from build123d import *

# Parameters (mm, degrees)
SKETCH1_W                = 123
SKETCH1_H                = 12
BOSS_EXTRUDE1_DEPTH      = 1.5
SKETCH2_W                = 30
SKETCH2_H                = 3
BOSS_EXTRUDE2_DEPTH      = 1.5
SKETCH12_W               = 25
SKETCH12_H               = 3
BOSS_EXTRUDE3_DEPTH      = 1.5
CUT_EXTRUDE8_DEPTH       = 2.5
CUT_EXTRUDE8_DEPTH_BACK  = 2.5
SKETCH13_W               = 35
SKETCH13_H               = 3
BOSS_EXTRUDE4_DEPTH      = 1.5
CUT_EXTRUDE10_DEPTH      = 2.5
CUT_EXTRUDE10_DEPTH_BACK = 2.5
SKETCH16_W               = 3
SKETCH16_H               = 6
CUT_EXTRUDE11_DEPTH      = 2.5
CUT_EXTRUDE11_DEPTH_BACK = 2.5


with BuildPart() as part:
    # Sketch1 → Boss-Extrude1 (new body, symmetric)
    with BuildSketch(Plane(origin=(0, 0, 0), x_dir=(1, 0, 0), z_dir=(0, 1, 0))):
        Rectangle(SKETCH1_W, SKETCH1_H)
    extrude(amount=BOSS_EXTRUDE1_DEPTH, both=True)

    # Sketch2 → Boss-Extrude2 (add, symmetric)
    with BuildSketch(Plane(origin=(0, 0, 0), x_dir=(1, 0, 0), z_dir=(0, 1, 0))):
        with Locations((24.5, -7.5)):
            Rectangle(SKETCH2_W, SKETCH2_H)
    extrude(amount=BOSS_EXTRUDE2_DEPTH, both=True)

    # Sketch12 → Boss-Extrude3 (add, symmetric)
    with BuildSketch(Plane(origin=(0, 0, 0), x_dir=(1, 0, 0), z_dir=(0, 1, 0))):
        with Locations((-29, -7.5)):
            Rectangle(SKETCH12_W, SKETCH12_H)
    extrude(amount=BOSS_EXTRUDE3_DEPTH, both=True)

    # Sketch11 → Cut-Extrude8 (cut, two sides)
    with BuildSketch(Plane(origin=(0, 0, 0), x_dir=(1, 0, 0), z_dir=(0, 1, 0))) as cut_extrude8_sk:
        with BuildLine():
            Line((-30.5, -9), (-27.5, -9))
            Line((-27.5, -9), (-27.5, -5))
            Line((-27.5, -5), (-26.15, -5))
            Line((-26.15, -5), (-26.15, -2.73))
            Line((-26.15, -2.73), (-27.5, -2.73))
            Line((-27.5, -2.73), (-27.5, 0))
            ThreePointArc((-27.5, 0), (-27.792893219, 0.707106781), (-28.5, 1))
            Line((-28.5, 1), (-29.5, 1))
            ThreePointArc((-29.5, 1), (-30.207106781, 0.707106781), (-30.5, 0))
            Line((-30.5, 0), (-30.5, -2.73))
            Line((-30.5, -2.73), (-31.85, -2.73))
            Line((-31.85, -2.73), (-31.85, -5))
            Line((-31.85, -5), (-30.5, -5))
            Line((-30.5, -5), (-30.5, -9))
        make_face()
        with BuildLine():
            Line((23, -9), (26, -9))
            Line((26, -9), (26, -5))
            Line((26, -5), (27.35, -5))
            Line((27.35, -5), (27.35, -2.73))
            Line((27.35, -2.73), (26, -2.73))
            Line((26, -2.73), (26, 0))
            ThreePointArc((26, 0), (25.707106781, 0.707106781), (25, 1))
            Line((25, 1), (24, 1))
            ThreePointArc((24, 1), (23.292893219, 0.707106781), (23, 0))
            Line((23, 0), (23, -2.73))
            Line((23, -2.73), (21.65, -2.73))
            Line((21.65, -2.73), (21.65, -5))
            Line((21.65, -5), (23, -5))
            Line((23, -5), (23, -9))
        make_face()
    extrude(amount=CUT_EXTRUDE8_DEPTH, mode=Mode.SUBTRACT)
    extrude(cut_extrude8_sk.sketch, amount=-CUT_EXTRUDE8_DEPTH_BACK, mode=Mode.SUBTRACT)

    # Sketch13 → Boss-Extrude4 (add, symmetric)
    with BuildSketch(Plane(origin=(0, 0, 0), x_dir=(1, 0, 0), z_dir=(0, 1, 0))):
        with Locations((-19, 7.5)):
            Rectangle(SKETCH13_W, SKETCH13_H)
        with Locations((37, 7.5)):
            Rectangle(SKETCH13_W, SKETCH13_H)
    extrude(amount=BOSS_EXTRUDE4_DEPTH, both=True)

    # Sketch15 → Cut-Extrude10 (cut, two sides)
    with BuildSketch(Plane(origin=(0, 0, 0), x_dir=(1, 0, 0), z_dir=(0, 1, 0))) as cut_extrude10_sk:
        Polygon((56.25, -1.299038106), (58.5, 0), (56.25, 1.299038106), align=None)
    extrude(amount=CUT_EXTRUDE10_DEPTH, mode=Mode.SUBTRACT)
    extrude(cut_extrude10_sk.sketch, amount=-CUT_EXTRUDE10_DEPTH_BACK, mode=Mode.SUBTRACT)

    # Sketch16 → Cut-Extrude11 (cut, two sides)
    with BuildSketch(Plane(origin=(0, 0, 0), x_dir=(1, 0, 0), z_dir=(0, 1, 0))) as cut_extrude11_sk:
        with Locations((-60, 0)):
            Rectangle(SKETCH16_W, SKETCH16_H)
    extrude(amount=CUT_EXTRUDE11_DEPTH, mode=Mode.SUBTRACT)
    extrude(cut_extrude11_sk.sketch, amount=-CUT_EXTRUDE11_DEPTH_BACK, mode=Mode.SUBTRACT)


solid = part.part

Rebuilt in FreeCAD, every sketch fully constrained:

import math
import FreeCAD as App
import Part
import Sketcher
from FreeCAD import Vector
Q = App.Units.Quantity

doc = App.newDocument("Part")
params = doc.addObject("Spreadsheet::Sheet", "Params")
for row, (alias, value) in enumerate([
    ("sketch1_width", "123 mm"),
    ("sketch1_height", "12 mm"),
    ("pad1_length", "3 mm"),
    ("sketch2_width", "30 mm"),
    ("sketch2_height", "3 mm"),
    ("pad2_length", "3 mm"),
    ("sketch3_width", "25 mm"),
    ("sketch3_height", "3 mm"),
    ("pad3_length", "3 mm"),
    ("sketch4_radius", "1 mm"),
    ("sketch4_width", "3 mm"),
    ("sketch4_height", "4 mm"),
    ("sketch4_width2", "1.35 mm"),
    ("sketch4_height2", "2.27 mm"),
    ("sketch5_width", "35 mm"),
    ("sketch5_height", "3 mm"),
    ("pad4_length", "3 mm"),
    ("sketch7_width", "3 mm"),
    ("sketch7_height", "6 mm"),
], start=1):
    params.set(f"A{row}", alias)
    params.set(f"B{row}", "=" + value)
    params.setAlias(f"B{row}", alias)

body = doc.addObject("PartDesign::Body", "Body")

# Sketch on XZ plane
sketch1 = doc.addObject("Sketcher::SketchObject", "Sketch")
body.addObject(sketch1)
sketch1.AttachmentSupport = (doc.XZ_Plane, [""])
sketch1.MapMode = "FlatFace"
sketch1.addGeometry(Part.LineSegment(Vector(-61.5, -6, 0), Vector(-61.5, 6, 0)), False)
sketch1.addGeometry(Part.LineSegment(Vector(-61.5, 6, 0), Vector(61.5, 6, 0)), False)
sketch1.addGeometry(Part.LineSegment(Vector(61.5, 6, 0), Vector(61.5, -6, 0)), False)
sketch1.addGeometry(Part.LineSegment(Vector(61.5, -6, 0), Vector(-61.5, -6, 0)), False)
sketch1.addConstraint(Sketcher.Constraint("Coincident", 0, 2, 1, 1))
sketch1.addConstraint(Sketcher.Constraint("Coincident", 1, 2, 2, 1))
sketch1.addConstraint(Sketcher.Constraint("Coincident", 2, 2, 3, 1))
sketch1.addConstraint(Sketcher.Constraint("Coincident", 3, 2, 0, 1))
sketch1.addConstraint(Sketcher.Constraint("Vertical", 0))
sketch1.addConstraint(Sketcher.Constraint("Horizontal", 1))
sketch1.addConstraint(Sketcher.Constraint("Vertical", 2))
sketch1.addConstraint(Sketcher.Constraint("Horizontal", 3))
sketch1.addConstraint(Sketcher.Constraint("Symmetric", 0, 2, 2, 2, -1, 1))
sketch1.addConstraint(Sketcher.Constraint("DistanceX", 1, 1, 1, 2, Q("123 mm")))
sketch1.addConstraint(Sketcher.Constraint("DistanceY", 0, 1, 0, 2, Q("12 mm")))
sketch1.setExpression("Constraints[9]", "Params.sketch1_width")
sketch1.setExpression("Constraints[10]", "Params.sketch1_height")
pad1 = doc.addObject("PartDesign::Pad", "Pad")
body.addObject(pad1)
pad1.Profile = sketch1
pad1.setExpression("Length", "Params.pad1_length")
pad1.Midplane = True

# Sketch on XZ plane
sketch2 = doc.addObject("Sketcher::SketchObject", "Sketch001")
body.addObject(sketch2)
sketch2.AttachmentSupport = (doc.XZ_Plane, [""])
sketch2.MapMode = "FlatFace"
sketch2.addGeometry(Part.LineSegment(Vector(9.5, 6, 0), Vector(9.5, 9, 0)), False)
sketch2.addGeometry(Part.LineSegment(Vector(9.5, 9, 0), Vector(39.5, 9, 0)), False)
sketch2.addGeometry(Part.LineSegment(Vector(39.5, 9, 0), Vector(39.5, 6, 0)), False)
sketch2.addGeometry(Part.LineSegment(Vector(39.5, 6, 0), Vector(9.5, 6, 0)), False)
sketch2.addConstraint(Sketcher.Constraint("Coincident", 0, 2, 1, 1))
sketch2.addConstraint(Sketcher.Constraint("Coincident", 1, 2, 2, 1))
sketch2.addConstraint(Sketcher.Constraint("Coincident", 2, 2, 3, 1))
sketch2.addConstraint(Sketcher.Constraint("Coincident", 3, 2, 0, 1))
sketch2.addConstraint(Sketcher.Constraint("Vertical", 0))
sketch2.addConstraint(Sketcher.Constraint("Horizontal", 1))
sketch2.addConstraint(Sketcher.Constraint("Vertical", 2))
sketch2.addConstraint(Sketcher.Constraint("Horizontal", 3))
sketch2.addConstraint(Sketcher.Constraint("DistanceX", 1, 1, 1, 2, Q("30 mm")))
sketch2.addConstraint(Sketcher.Constraint("DistanceY", 0, 1, 0, 2, Q("3 mm")))
sketch2.addConstraint(Sketcher.Constraint("DistanceY", -1, 1, 0, 2, Q("9 mm")))
sketch2.addConstraint(Sketcher.Constraint("DistanceX", -1, 1, 0, 2, Q("9.5 mm")))
sketch2.setExpression("Constraints[8]", "Params.sketch2_width")
sketch2.setExpression("Constraints[9]", "Params.sketch2_height")
pad2 = doc.addObject("PartDesign::Pad", "Pad001")
body.addObject(pad2)
pad2.Profile = sketch2
pad2.setExpression("Length", "Params.pad2_length")
pad2.Midplane = True

# Sketch on XZ plane
sketch3 = doc.addObject("Sketcher::SketchObject", "Sketch002")
body.addObject(sketch3)
sketch3.AttachmentSupport = (doc.XZ_Plane, [""])
sketch3.MapMode = "FlatFace"
sketch3.addGeometry(Part.LineSegment(Vector(-41.5, 6, 0), Vector(-41.5, 9, 0)), False)
sketch3.addGeometry(Part.LineSegment(Vector(-41.5, 9, 0), Vector(-16.5, 9, 0)), False)
sketch3.addGeometry(Part.LineSegment(Vector(-16.5, 9, 0), Vector(-16.5, 6, 0)), False)
sketch3.addGeometry(Part.LineSegment(Vector(-16.5, 6, 0), Vector(-41.5, 6, 0)), False)
sketch3.addConstraint(Sketcher.Constraint("Coincident", 0, 2, 1, 1))
sketch3.addConstraint(Sketcher.Constraint("Coincident", 1, 2, 2, 1))
sketch3.addConstraint(Sketcher.Constraint("Coincident", 2, 2, 3, 1))
sketch3.addConstraint(Sketcher.Constraint("Coincident", 3, 2, 0, 1))
sketch3.addConstraint(Sketcher.Constraint("Vertical", 0))
sketch3.addConstraint(Sketcher.Constraint("Horizontal", 1))
sketch3.addConstraint(Sketcher.Constraint("Vertical", 2))
sketch3.addConstraint(Sketcher.Constraint("Horizontal", 3))
sketch3.addConstraint(Sketcher.Constraint("DistanceX", 1, 1, 1, 2, Q("25 mm")))
sketch3.addConstraint(Sketcher.Constraint("DistanceY", 0, 1, 0, 2, Q("3 mm")))
sketch3.addConstraint(Sketcher.Constraint("DistanceY", -1, 1, 0, 2, Q("9 mm")))
sketch3.addConstraint(Sketcher.Constraint("DistanceX", 0, 2, -1, 1, Q("41.5 mm")))
sketch3.setExpression("Constraints[8]", "Params.sketch3_width")
sketch3.setExpression("Constraints[9]", "Params.sketch3_height")
pad3 = doc.addObject("PartDesign::Pad", "Pad002")
body.addObject(pad3)
pad3.Profile = sketch3
pad3.setExpression("Length", "Params.pad3_length")
pad3.Midplane = True

# Sketch on XZ plane
sketch4 = doc.addObject("Sketcher::SketchObject", "Sketch003")
body.addObject(sketch4)
sketch4.AttachmentSupport = (doc.XZ_Plane, [""])
sketch4.MapMode = "FlatFace"
sketch4.addGeometry(Part.LineSegment(Vector(-30.5, 9, 0), Vector(-27.5, 9, 0)), False)
sketch4.addGeometry(Part.LineSegment(Vector(-27.5, 9, 0), Vector(-27.5, 5, 0)), False)
sketch4.addGeometry(Part.LineSegment(Vector(-27.5, 5, 0), Vector(-26.15, 5, 0)), False)
sketch4.addGeometry(Part.LineSegment(Vector(-26.15, 5, 0), Vector(-26.15, 2.73, 0)), False)
sketch4.addGeometry(Part.LineSegment(Vector(-26.15, 2.73, 0), Vector(-27.5, 2.73, 0)), False)
sketch4.addGeometry(Part.LineSegment(Vector(-27.5, 2.73, 0), Vector(-27.5, 0, 0)), False)
sketch4.addGeometry(Part.ArcOfCircle(Part.Circle(Vector(-28.5, 0, 0), Vector(0, 0, 1), 1), math.radians(-90), math.radians(0)), False)
sketch4.addGeometry(Part.LineSegment(Vector(-28.5, -1, 0), Vector(-29.5, -1, 0)), False)
sketch4.addGeometry(Part.ArcOfCircle(Part.Circle(Vector(-29.5, 0, 0), Vector(0, 0, 1), 1), math.radians(-180), math.radians(-90)), False)
sketch4.addGeometry(Part.LineSegment(Vector(-30.5, 0, 0), Vector(-30.5, 2.73, 0)), False)
sketch4.addGeometry(Part.LineSegment(Vector(-30.5, 2.73, 0), Vector(-31.85, 2.73, 0)), False)
sketch4.addGeometry(Part.LineSegment(Vector(-31.85, 2.73, 0), Vector(-31.85, 5, 0)), False)
sketch4.addGeometry(Part.LineSegment(Vector(-31.85, 5, 0), Vector(-30.5, 5, 0)), False)
sketch4.addGeometry(Part.LineSegment(Vector(-30.5, 5, 0), Vector(-30.5, 9, 0)), False)
sketch4.addGeometry(Part.LineSegment(Vector(23, 9, 0), Vector(26, 9, 0)), False)
sketch4.addGeometry(Part.LineSegment(Vector(26, 9, 0), Vector(26, 5, 0)), False)
sketch4.addGeometry(Part.LineSegment(Vector(26, 5, 0), Vector(27.35, 5, 0)), False)
sketch4.addGeometry(Part.LineSegment(Vector(27.35, 5, 0), Vector(27.35, 2.73, 0)), False)
sketch4.addGeometry(Part.LineSegment(Vector(27.35, 2.73, 0), Vector(26, 2.73, 0)), False)
sketch4.addGeometry(Part.LineSegment(Vector(26, 2.73, 0), Vector(26, 0, 0)), False)
sketch4.addGeometry(Part.ArcOfCircle(Part.Circle(Vector(25, 0, 0), Vector(0, 0, 1), 1), math.radians(-90), math.radians(0)), False)
sketch4.addGeometry(Part.LineSegment(Vector(25, -1, 0), Vector(24, -1, 0)), False)
sketch4.addGeometry(Part.ArcOfCircle(Part.Circle(Vector(24, 0, 0), Vector(0, 0, 1), 1), math.radians(-180), math.radians(-90)), False)
sketch4.addGeometry(Part.LineSegment(Vector(23, 0, 0), Vector(23, 2.73, 0)), False)
sketch4.addGeometry(Part.LineSegment(Vector(23, 2.73, 0), Vector(21.65, 2.73, 0)), False)
sketch4.addGeometry(Part.LineSegment(Vector(21.65, 2.73, 0), Vector(21.65, 5, 0)), False)
sketch4.addGeometry(Part.LineSegment(Vector(21.65, 5, 0), Vector(23, 5, 0)), False)
sketch4.addGeometry(Part.LineSegment(Vector(23, 5, 0), Vector(23, 9, 0)), False)
sketch4.addConstraint(Sketcher.Constraint("Coincident", 0, 2, 1, 1))
sketch4.addConstraint(Sketcher.Constraint("Coincident", 1, 2, 2, 1))
sketch4.addConstraint(Sketcher.Constraint("Coincident", 2, 2, 3, 1))
sketch4.addConstraint(Sketcher.Constraint("Coincident", 3, 2, 4, 1))
sketch4.addConstraint(Sketcher.Constraint("Coincident", 4, 2, 5, 1))
sketch4.addConstraint(Sketcher.Constraint("Tangent", 5, 2, 6, 2))
sketch4.addConstraint(Sketcher.Constraint("Tangent", 6, 1, 7, 1))
sketch4.addConstraint(Sketcher.Constraint("Tangent", 7, 2, 8, 2))
sketch4.addConstraint(Sketcher.Constraint("Tangent", 8, 1, 9, 1))
sketch4.addConstraint(Sketcher.Constraint("Coincident", 9, 2, 10, 1))
sketch4.addConstraint(Sketcher.Constraint("Coincident", 10, 2, 11, 1))
sketch4.addConstraint(Sketcher.Constraint("Coincident", 11, 2, 12, 1))
sketch4.addConstraint(Sketcher.Constraint("Coincident", 12, 2, 13, 1))
sketch4.addConstraint(Sketcher.Constraint("Coincident", 13, 2, 0, 1))
sketch4.addConstraint(Sketcher.Constraint("Coincident", 14, 2, 15, 1))
sketch4.addConstraint(Sketcher.Constraint("Coincident", 15, 2, 16, 1))
sketch4.addConstraint(Sketcher.Constraint("Coincident", 16, 2, 17, 1))
sketch4.addConstraint(Sketcher.Constraint("Coincident", 17, 2, 18, 1))
sketch4.addConstraint(Sketcher.Constraint("Coincident", 18, 2, 19, 1))
sketch4.addConstraint(Sketcher.Constraint("Tangent", 19, 2, 20, 2))
sketch4.addConstraint(Sketcher.Constraint("Tangent", 20, 1, 21, 1))
sketch4.addConstraint(Sketcher.Constraint("Tangent", 21, 2, 22, 2))
sketch4.addConstraint(Sketcher.Constraint("Tangent", 22, 1, 23, 1))
sketch4.addConstraint(Sketcher.Constraint("Coincident", 23, 2, 24, 1))
sketch4.addConstraint(Sketcher.Constraint("Coincident", 24, 2, 25, 1))
sketch4.addConstraint(Sketcher.Constraint("Coincident", 25, 2, 26, 1))
sketch4.addConstraint(Sketcher.Constraint("Coincident", 26, 2, 27, 1))
sketch4.addConstraint(Sketcher.Constraint("Coincident", 27, 2, 14, 1))
sketch4.addConstraint(Sketcher.Constraint("Horizontal", 0))
sketch4.addConstraint(Sketcher.Constraint("Vertical", 1))
sketch4.addConstraint(Sketcher.Constraint("Horizontal", 2))
sketch4.addConstraint(Sketcher.Constraint("Vertical", 3))
sketch4.addConstraint(Sketcher.Constraint("Horizontal", 4))
sketch4.addConstraint(Sketcher.Constraint("Vertical", 5))
sketch4.addConstraint(Sketcher.Constraint("Horizontal", 7))
sketch4.addConstraint(Sketcher.Constraint("Vertical", 9))
sketch4.addConstraint(Sketcher.Constraint("Horizontal", 10))
sketch4.addConstraint(Sketcher.Constraint("Vertical", 11))
sketch4.addConstraint(Sketcher.Constraint("Horizontal", 12))
sketch4.addConstraint(Sketcher.Constraint("Vertical", 13))
sketch4.addConstraint(Sketcher.Constraint("Horizontal", 14))
sketch4.addConstraint(Sketcher.Constraint("Vertical", 15))
sketch4.addConstraint(Sketcher.Constraint("Horizontal", 16))
sketch4.addConstraint(Sketcher.Constraint("Vertical", 17))
sketch4.addConstraint(Sketcher.Constraint("Horizontal", 18))
sketch4.addConstraint(Sketcher.Constraint("Vertical", 19))
sketch4.addConstraint(Sketcher.Constraint("Horizontal", 21))
sketch4.addConstraint(Sketcher.Constraint("Vertical", 23))
sketch4.addConstraint(Sketcher.Constraint("Horizontal", 24))
sketch4.addConstraint(Sketcher.Constraint("Vertical", 25))
sketch4.addConstraint(Sketcher.Constraint("Horizontal", 26))
sketch4.addConstraint(Sketcher.Constraint("Vertical", 27))
sketch4.addConstraint(Sketcher.Constraint("Equal", 6, 8))
sketch4.addConstraint(Sketcher.Constraint("Equal", 8, 20))
sketch4.addConstraint(Sketcher.Constraint("Equal", 20, 22))
sketch4.addConstraint(Sketcher.Constraint("PointOnObject", 6, 3, -1))
sketch4.addConstraint(Sketcher.Constraint("PointOnObject", 20, 3, -1))
sketch4.addConstraint(Sketcher.Constraint("Horizontal", 4, 2, 9, 2))
sketch4.addConstraint(Sketcher.Constraint("Horizontal", 2, 2, 11, 2))
sketch4.addConstraint(Sketcher.Constraint("Horizontal", 13, 2, 14, 2))
sketch4.addConstraint(Sketcher.Constraint("Horizontal", 12, 2, 15, 2))
sketch4.addConstraint(Sketcher.Constraint("Horizontal", 10, 2, 17, 2))
sketch4.addConstraint(Sketcher.Constraint("Horizontal", 18, 2, 23, 2))
sketch4.addConstraint(Sketcher.Constraint("Horizontal", 16, 2, 25, 2))
sketch4.addConstraint(Sketcher.Constraint("Vertical", 1, 2, 4, 2))
sketch4.addConstraint(Sketcher.Constraint("Vertical", 9, 2, 12, 2))
sketch4.addConstraint(Sketcher.Constraint("Vertical", 15, 2, 18, 2))
sketch4.addConstraint(Sketcher.Constraint("Vertical", 23, 2, 26, 2))
sketch4.addConstraint(Sketcher.Constraint("Equal", 4, 10))
sketch4.addConstraint(Sketcher.Constraint("Equal", 0, 14))
sketch4.addConstraint(Sketcher.Constraint("Equal", 12, 16))
sketch4.addConstraint(Sketcher.Constraint("Equal", 18, 24))
sketch4.addConstraint(Sketcher.Constraint("Radius", 6, Q("1 mm")))
sketch4.addConstraint(Sketcher.Constraint("DistanceX", 0, 1, 0, 2, Q("3 mm")))
sketch4.addConstraint(Sketcher.Constraint("DistanceY", 1, 2, 1, 1, Q("4 mm")))
sketch4.addConstraint(Sketcher.Constraint("DistanceX", -1, 1, 20, 3, Q("25 mm")))
sketch4.addConstraint(Sketcher.Constraint("DistanceY", -1, 1, 0, 2, Q("9 mm")))
sketch4.addConstraint(Sketcher.Constraint("DistanceX", 2, 1, 2, 2, Q("1.35 mm")))
sketch4.addConstraint(Sketcher.Constraint("DistanceY", 3, 2, 3, 1, Q("2.27 mm")))
sketch4.addConstraint(Sketcher.Constraint("DistanceX", 6, 3, -1, 1, Q("28.5 mm")))
sketch4.setExpression("Constraints[72]", "Params.sketch4_radius")
sketch4.setExpression("Constraints[73]", "Params.sketch4_width")
sketch4.setExpression("Constraints[74]", "Params.sketch4_height")
sketch4.setExpression("Constraints[77]", "Params.sketch4_width2")
sketch4.setExpression("Constraints[78]", "Params.sketch4_height2")
pocket1 = doc.addObject("PartDesign::Pocket", "Pocket")
body.addObject(pocket1)
pocket1.Profile = sketch4
pocket1.Type = "ThroughAll"
pocket1.Midplane = True

# Sketch on XZ plane
sketch5 = doc.addObject("Sketcher::SketchObject", "Sketch004")
body.addObject(sketch5)
sketch5.AttachmentSupport = (doc.XZ_Plane, [""])
sketch5.MapMode = "FlatFace"
sketch5.addGeometry(Part.LineSegment(Vector(-36.5, -9, 0), Vector(-36.5, -6, 0)), False)
sketch5.addGeometry(Part.LineSegment(Vector(-36.5, -6, 0), Vector(-1.5, -6, 0)), False)
sketch5.addGeometry(Part.LineSegment(Vector(-1.5, -6, 0), Vector(-1.5, -9, 0)), False)
sketch5.addGeometry(Part.LineSegment(Vector(-1.5, -9, 0), Vector(-36.5, -9, 0)), False)
sketch5.addGeometry(Part.LineSegment(Vector(19.5, -9, 0), Vector(19.5, -6, 0)), False)
sketch5.addGeometry(Part.LineSegment(Vector(19.5, -6, 0), Vector(54.5, -6, 0)), False)
sketch5.addGeometry(Part.LineSegment(Vector(54.5, -6, 0), Vector(54.5, -9, 0)), False)
sketch5.addGeometry(Part.LineSegment(Vector(54.5, -9, 0), Vector(19.5, -9, 0)), False)
sketch5.addConstraint(Sketcher.Constraint("Coincident", 0, 2, 1, 1))
sketch5.addConstraint(Sketcher.Constraint("Coincident", 1, 2, 2, 1))
sketch5.addConstraint(Sketcher.Constraint("Coincident", 2, 2, 3, 1))
sketch5.addConstraint(Sketcher.Constraint("Coincident", 3, 2, 0, 1))
sketch5.addConstraint(Sketcher.Constraint("Coincident", 4, 2, 5, 1))
sketch5.addConstraint(Sketcher.Constraint("Coincident", 5, 2, 6, 1))
sketch5.addConstraint(Sketcher.Constraint("Coincident", 6, 2, 7, 1))
sketch5.addConstraint(Sketcher.Constraint("Coincident", 7, 2, 4, 1))
sketch5.addConstraint(Sketcher.Constraint("Vertical", 0))
sketch5.addConstraint(Sketcher.Constraint("Horizontal", 1))
sketch5.addConstraint(Sketcher.Constraint("Vertical", 2))
sketch5.addConstraint(Sketcher.Constraint("Horizontal", 3))
sketch5.addConstraint(Sketcher.Constraint("Vertical", 4))
sketch5.addConstraint(Sketcher.Constraint("Horizontal", 5))
sketch5.addConstraint(Sketcher.Constraint("Vertical", 6))
sketch5.addConstraint(Sketcher.Constraint("Horizontal", 7))
sketch5.addConstraint(Sketcher.Constraint("Horizontal", 1, 2, 4, 2))
sketch5.addConstraint(Sketcher.Constraint("Horizontal", 3, 2, 6, 2))
sketch5.addConstraint(Sketcher.Constraint("Equal", 3, 5))
sketch5.addConstraint(Sketcher.Constraint("DistanceX", 1, 1, 1, 2, Q("35 mm")))
sketch5.addConstraint(Sketcher.Constraint("DistanceY", 0, 1, 0, 2, Q("3 mm")))
sketch5.addConstraint(Sketcher.Constraint("DistanceY", 0, 2, -1, 1, Q("6 mm")))
sketch5.addConstraint(Sketcher.Constraint("DistanceX", 1, 2, 4, 2, Q("21 mm")))
sketch5.addConstraint(Sketcher.Constraint("DistanceX", 0, 2, -1, 1, Q("36.5 mm")))
sketch5.setExpression("Constraints[19]", "Params.sketch5_width")
sketch5.setExpression("Constraints[20]", "Params.sketch5_height")
pad4 = doc.addObject("PartDesign::Pad", "Pad003")
body.addObject(pad4)
pad4.Profile = sketch5
pad4.setExpression("Length", "Params.pad4_length")
pad4.Midplane = True

# Sketch on XZ plane
sketch6 = doc.addObject("Sketcher::SketchObject", "Sketch005")
body.addObject(sketch6)
sketch6.AttachmentSupport = (doc.XZ_Plane, [""])
sketch6.MapMode = "FlatFace"
sketch6.addGeometry(Part.LineSegment(Vector(56.25, 1.299038, 0), Vector(58.5, 0, 0)), False)
sketch6.addGeometry(Part.LineSegment(Vector(58.5, 0, 0), Vector(56.25, -1.299038, 0)), False)
sketch6.addGeometry(Part.LineSegment(Vector(56.25, -1.299038, 0), Vector(56.25, 1.299038, 0)), False)
sketch6.addConstraint(Sketcher.Constraint("Coincident", 0, 2, 1, 1))
sketch6.addConstraint(Sketcher.Constraint("Coincident", 1, 2, 2, 1))
sketch6.addConstraint(Sketcher.Constraint("Coincident", 2, 2, 0, 1))
sketch6.addConstraint(Sketcher.Constraint("Vertical", 2))
sketch6.addConstraint(Sketcher.Constraint("PointOnObject", 0, 2, -1))
sketch6.addConstraint(Sketcher.Constraint("Equal", 0, 1))
sketch6.addConstraint(Sketcher.Constraint("Angle", 0, Q("-30 deg")))
sketch6.addConstraint(Sketcher.Constraint("DistanceX", -1, 1, 0, 2, Q("58.5 mm")))
sketch6.addConstraint(Sketcher.Constraint("DistanceX", -1, 1, 1, 2, Q("56.25 mm")))
pocket2 = doc.addObject("PartDesign::Pocket", "Pocket001")
body.addObject(pocket2)
pocket2.Profile = sketch6
pocket2.Type = "ThroughAll"
pocket2.Midplane = True

# Sketch on XZ plane
sketch7 = doc.addObject("Sketcher::SketchObject", "Sketch006")
body.addObject(sketch7)
sketch7.AttachmentSupport = (doc.XZ_Plane, [""])
sketch7.MapMode = "FlatFace"
sketch7.addGeometry(Part.LineSegment(Vector(-61.5, -3, 0), Vector(-61.5, 3, 0)), False)
sketch7.addGeometry(Part.LineSegment(Vector(-61.5, 3, 0), Vector(-58.5, 3, 0)), False)
sketch7.addGeometry(Part.LineSegment(Vector(-58.5, 3, 0), Vector(-58.5, -3, 0)), False)
sketch7.addGeometry(Part.LineSegment(Vector(-58.5, -3, 0), Vector(-61.5, -3, 0)), False)
sketch7.addConstraint(Sketcher.Constraint("Coincident", 0, 2, 1, 1))
sketch7.addConstraint(Sketcher.Constraint("Coincident", 1, 2, 2, 1))
sketch7.addConstraint(Sketcher.Constraint("Coincident", 2, 2, 3, 1))
sketch7.addConstraint(Sketcher.Constraint("Coincident", 3, 2, 0, 1))
sketch7.addConstraint(Sketcher.Constraint("Vertical", 0))
sketch7.addConstraint(Sketcher.Constraint("Horizontal", 1))
sketch7.addConstraint(Sketcher.Constraint("Vertical", 2))
sketch7.addConstraint(Sketcher.Constraint("Horizontal", 3))
sketch7.addConstraint(Sketcher.Constraint("DistanceX", 1, 1, 1, 2, Q("3 mm")))
sketch7.addConstraint(Sketcher.Constraint("DistanceY", 0, 1, 0, 2, Q("6 mm")))
sketch7.addConstraint(Sketcher.Constraint("DistanceY", -1, 1, 0, 2, Q("3 mm")))
sketch7.addConstraint(Sketcher.Constraint("DistanceX", 0, 2, -1, 1, Q("61.5 mm")))
sketch7.setExpression("Constraints[8]", "Params.sketch7_width")
sketch7.setExpression("Constraints[9]", "Params.sketch7_height")
pocket3 = doc.addObject("PartDesign::Pocket", "Pocket002")
body.addObject(pocket3)
pocket3.Profile = sketch7
pocket3.Type = "ThroughAll"
pocket3.Midplane = True

doc.recompute()
